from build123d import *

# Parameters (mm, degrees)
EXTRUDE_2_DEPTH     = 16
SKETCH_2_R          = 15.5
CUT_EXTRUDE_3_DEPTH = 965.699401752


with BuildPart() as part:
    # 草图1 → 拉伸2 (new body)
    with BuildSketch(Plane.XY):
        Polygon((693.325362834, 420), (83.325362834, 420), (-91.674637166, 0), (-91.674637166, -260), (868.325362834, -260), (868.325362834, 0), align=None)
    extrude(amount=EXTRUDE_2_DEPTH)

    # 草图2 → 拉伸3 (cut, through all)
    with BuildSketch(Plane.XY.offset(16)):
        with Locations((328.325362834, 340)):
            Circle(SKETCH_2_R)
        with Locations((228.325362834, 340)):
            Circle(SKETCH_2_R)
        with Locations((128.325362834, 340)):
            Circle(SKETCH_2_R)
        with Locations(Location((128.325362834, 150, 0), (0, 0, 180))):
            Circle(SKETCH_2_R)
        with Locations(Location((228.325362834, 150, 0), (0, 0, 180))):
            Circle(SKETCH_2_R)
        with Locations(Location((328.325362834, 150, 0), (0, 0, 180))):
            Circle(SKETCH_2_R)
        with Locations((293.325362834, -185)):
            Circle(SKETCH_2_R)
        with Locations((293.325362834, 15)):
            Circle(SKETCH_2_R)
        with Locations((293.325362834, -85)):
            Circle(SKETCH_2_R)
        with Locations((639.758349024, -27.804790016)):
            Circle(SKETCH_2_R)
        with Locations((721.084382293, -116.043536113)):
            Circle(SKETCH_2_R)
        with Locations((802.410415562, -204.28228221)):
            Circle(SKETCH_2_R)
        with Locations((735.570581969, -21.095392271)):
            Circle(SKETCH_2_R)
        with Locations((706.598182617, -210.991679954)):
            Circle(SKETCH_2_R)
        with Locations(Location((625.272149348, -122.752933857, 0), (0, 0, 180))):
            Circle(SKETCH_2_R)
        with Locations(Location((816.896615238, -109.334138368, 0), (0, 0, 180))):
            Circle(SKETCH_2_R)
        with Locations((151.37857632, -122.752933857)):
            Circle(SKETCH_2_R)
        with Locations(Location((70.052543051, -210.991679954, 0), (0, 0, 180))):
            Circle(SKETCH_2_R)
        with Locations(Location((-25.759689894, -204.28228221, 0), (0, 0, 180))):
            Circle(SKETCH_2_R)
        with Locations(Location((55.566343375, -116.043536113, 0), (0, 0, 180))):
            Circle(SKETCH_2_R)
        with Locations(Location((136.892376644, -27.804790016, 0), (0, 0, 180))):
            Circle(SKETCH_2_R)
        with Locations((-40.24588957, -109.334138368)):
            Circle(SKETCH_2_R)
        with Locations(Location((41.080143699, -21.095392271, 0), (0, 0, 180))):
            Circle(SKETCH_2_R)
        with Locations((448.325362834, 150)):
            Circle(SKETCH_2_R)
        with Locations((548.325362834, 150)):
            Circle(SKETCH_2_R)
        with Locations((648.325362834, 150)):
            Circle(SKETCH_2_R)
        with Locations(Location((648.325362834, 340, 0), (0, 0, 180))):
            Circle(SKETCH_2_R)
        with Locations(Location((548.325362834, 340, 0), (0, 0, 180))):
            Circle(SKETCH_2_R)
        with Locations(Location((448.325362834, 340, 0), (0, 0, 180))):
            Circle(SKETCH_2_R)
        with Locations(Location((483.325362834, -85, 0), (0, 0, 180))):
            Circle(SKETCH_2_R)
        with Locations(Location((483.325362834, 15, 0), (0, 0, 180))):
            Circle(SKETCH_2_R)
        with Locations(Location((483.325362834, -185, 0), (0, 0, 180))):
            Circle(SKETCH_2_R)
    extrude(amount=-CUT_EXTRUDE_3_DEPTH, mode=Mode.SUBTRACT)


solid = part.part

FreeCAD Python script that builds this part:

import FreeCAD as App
import Part
import Sketcher
from FreeCAD import Vector

doc = App.newDocument("Part")
params = doc.addObject("Spreadsheet::Sheet", "Params")
for row, (alias, value) in enumerate([
    ("sketch1_width", "610 mm"),
    ("sketch1_width2", "960 mm"),
    ("sketch1_height", "260 mm"),
    ("sketch1_length", "455 mm"),
    ("pad1_length", "16 mm"),
    ("sketch2_diameter", "31 mm"),
], start=1):
    params.set(f"A{row}", alias)
    params.set(f"B{row}", "=" + value)
    params.setAlias(f"B{row}", alias)

body = doc.addObject("PartDesign::Body", "Body")

# Sketch on XY plane
sketch1 = body.newObject("Sketcher::SketchObject", "Sketch")
sketch1.AttachmentSupport = (doc.getObject("XY_Plane"), [""])
sketch1.MapMode = "FlatFace"
sketch1.addGeometry([
    Part.LineSegment(Vector(693, 420, 0), Vector(83, 420, 0)),  # 0
    Part.LineSegment(Vector(83, 420, 0), Vector(-92, 0, 0)),  # 1
    Part.LineSegment(Vector(-92, 0, 0), Vector(-92, -260, 0)),  # 2
    Part.LineSegment(Vector(-92, -260, 0), Vector(868, -260, 0)),  # 3
    Part.LineSegment(Vector(868, -260, 0), Vector(868, 0, 0)),  # 4
    Part.LineSegment(Vector(868, 0, 0), Vector(693, 420, 0)),  # 5
], False)
sketch1.addConstraint([
    Sketcher.Constraint("Coincident", 0, 2, 1, 1),
    Sketcher.Constraint("Coincident", 1, 2, 2, 1),
    Sketcher.Constraint("Coincident", 2, 2, 3, 1),
    Sketcher.Constraint("Coincident", 3, 2, 4, 1),
    Sketcher.Constraint("Coincident", 4, 2, 5, 1),
    Sketcher.Constraint("Coincident", 5, 2, 0, 1),
    Sketcher.Constraint("Horizontal", 0),
    Sketcher.Constraint("Vertical", 2),
    Sketcher.Constraint("Horizontal", 3),
    Sketcher.Constraint("Vertical", 4),
    Sketcher.Constraint("PointOnObject", 1, 2, -1),
    Sketcher.Constraint("PointOnObject", 4, 2, -1),
    Sketcher.Constraint("Equal", 1, 5),
    Sketcher.Constraint("DistanceX", 0, 2, 0, 1, 610.0),
    Sketcher.Constraint("DistanceX", 3, 1, 3, 2, 960.0),
    Sketcher.Constraint("DistanceY", 2, 2, 2, 1, 260.0),
    Sketcher.Constraint("Distance", 1, 455.0),
    Sketcher.Constraint("DistanceX", -1, 1, 0, 2, 83.325363),
])
sketch1.setExpression("Constraints[13]", "Params.sketch1_width")
sketch1.setExpression("Constraints[14]", "Params.sketch1_width2")
sketch1.setExpression("Constraints[15]", "Params.sketch1_height")
sketch1.setExpression("Constraints[16]", "Params.sketch1_length")
pad1 = body.newObject("PartDesign::Pad", "Pad")
pad1.Profile = sketch1
pad1.setExpression("Length", "Params.pad1_length")

# Sketch on XY plane
sketch2 = body.newObject("Sketcher::SketchObject", "Sketch001")
sketch2.AttachmentSupport = (doc.getObject("XY_Plane"), [""])
sketch2.MapMode = "FlatFace"
sketch2.AttachmentOffset = App.Placement(Vector(0, 0, 16), App.Rotation())
sketch2.addGeometry([
    Part.Circle(Vector(328, 340, 0), Vector(0, 0, 1), 16),  # 0
    Part.Circle(Vector(228, 340, 0), Vector(0, 0, 1), 16),  # 1
    Part.Circle(Vector(128, 340, 0), Vector(0, 0, 1), 16),  # 2
    Part.Circle(Vector(128, 150, 0), Vector(0, 0, 1), 16),  # 3
    Part.Circle(Vector(228, 150, 0), Vector(0, 0, 1), 16),  # 4
    Part.Circle(Vector(328, 150, 0), Vector(0, 0, 1), 16),  # 5
    Part.Circle(Vector(293, -185, 0), Vector(0, 0, 1), 16),  # 6
    Part.Circle(Vector(293, 15, 0), Vector(0, 0, 1), 16),  # 7
    Part.Circle(Vector(293, -85, 0), Vector(0, 0, 1), 16),  # 8
    Part.Circle(Vector(640, -28, 0), Vector(0, 0, 1), 16),  # 9
    Part.Circle(Vector(721, -116, 0), Vector(0, 0, 1), 16),  # 10
    Part.Circle(Vector(802, -204, 0), Vector(0, 0, 1), 16),  # 11
    Part.Circle(Vector(736, -21, 0), Vector(0, 0, 1), 16),  # 12
    Part.Circle(Vector(707, -211, 0), Vector(0, 0, 1), 16),  # 13
    Part.Circle(Vector(625, -123, 0), Vector(0, 0, 1), 16),  # 14
    Part.Circle(Vector(817, -109, 0), Vector(0, 0, 1), 16),  # 15
    Part.Circle(Vector(151, -123, 0), Vector(0, 0, 1), 16),  # 16
    Part.Circle(Vector(70, -211, 0), Vector(0, 0, 1), 16),  # 17
    Part.Circle(Vector(-26, -204, 0), Vector(0, 0, 1), 16),  # 18
    Part.Circle(Vector(56, -116, 0), Vector(0, 0, 1), 16),  # 19
    Part.Circle(Vector(137, -28, 0), Vector(0, 0, 1), 16),  # 20
    Part.Circle(Vector(-40, -109, 0), Vector(0, 0, 1), 16),  # 21
    Part.Circle(Vector(41, -21, 0), Vector(0, 0, 1), 16),  # 22
    Part.Circle(Vector(448, 150, 0), Vector(0, 0, 1), 16),  # 23
    Part.Circle(Vector(548, 150, 0), Vector(0, 0, 1), 16),  # 24
    Part.Circle(Vector(648, 150, 0), Vector(0, 0, 1), 16),  # 25
    Part.Circle(Vector(648, 340, 0), Vector(0, 0, 1), 16),  # 26
    Part.Circle(Vector(548, 340, 0), Vector(0, 0, 1), 16),  # 27
    Part.Circle(Vector(448, 340, 0), Vector(0, 0, 1), 16),  # 28
    Part.Circle(Vector(483, -85, 0), Vector(0, 0, 1), 16),  # 29
    Part.Circle(Vector(483, 15, 0), Vector(0, 0, 1), 16),  # 30
    Part.Circle(Vector(483, -185, 0), Vector(0, 0, 1), 16),  # 31
], False)
sketch2.addConstraint([
    Sketcher.Constraint("Equal", 0, 1),
    Sketcher.Constraint("Equal", 1, 2),
    Sketcher.Constraint("Equal", 2, 3),
    Sketcher.Constraint("Equal", 3, 4),
    Sketcher.Constraint("Equal", 4, 5),
    Sketcher.Constraint("Equal", 5, 6),
    Sketcher.Constraint("Equal", 6, 7),
    Sketcher.Constraint("Equal", 7, 8),
    Sketcher.Constraint("Equal", 8, 9),
    Sketcher.Constraint("Equal", 9, 10),
    Sketcher.Constraint("Equal", 10, 11),
    Sketcher.Constraint("Equal", 11, 12),
    Sketcher.Constraint("Equal", 12, 13),
    Sketcher.Constraint("Equal", 13, 14),
    Sketcher.Constraint("Equal", 14, 15),
    Sketcher.Constraint("Equal", 15, 16),
    Sketcher.Constraint("Equal", 16, 17),
    Sketcher.Constraint("Equal", 17, 18),
    Sketcher.Constraint("Equal", 18, 19),
    Sketcher.Constraint("Equal", 19, 20),
    Sketcher.Constraint("Equal", 20, 21),
    Sketcher.Constraint("Equal", 21, 22),
    Sketcher.Constraint("Equal", 22, 23),
    Sketcher.Constraint("Equal", 23, 24),
    Sketcher.Constraint("Equal", 24, 25),
    Sketcher.Constraint("Equal", 25, 26),
    Sketcher.Constraint("Equal", 26, 27),
    Sketcher.Constraint("Equal", 27, 28),
    Sketcher.Constraint("Equal", 28, 29),
    Sketcher.Constraint("Equal", 29, 30),
    Sketcher.Constraint("Equal", 30, 31),
    Sketcher.Constraint("Horizontal", 0, 3, 1, 3),
    Sketcher.Constraint("Horizontal", 1, 3, 2, 3),
    Sketcher.Constraint("Horizontal", 3, 3, 4, 3),
    Sketcher.Constraint("Horizontal", 4, 3, 5, 3),
    Sketcher.Constraint("Horizontal", 14, 3, 16, 3),
    Sketcher.Constraint("Horizontal", 13, 3, 17, 3),
    Sketcher.Constraint("Horizontal", 11, 3, 18, 3),
    Sketcher.Constraint("Horizontal", 10, 3, 19, 3),
    Sketcher.Constraint("Horizontal", 9, 3, 20, 3),
    Sketcher.Constraint("Horizontal", 15, 3, 21, 3),
    Sketcher.Constraint("Horizontal", 12, 3, 22, 3),
    Sketcher.Constraint("Horizontal", 5, 3, 23, 3),
    Sketcher.Constraint("Horizontal", 23, 3, 24, 3),
    Sketcher.Constraint("Horizontal", 24, 3, 25, 3),
    Sketcher.Constraint("Horizontal", 2, 3, 26, 3),
    Sketcher.Constraint("Horizontal", 26, 3, 27, 3),
    Sketcher.Constraint("Horizontal", 27, 3, 28, 3),
    Sketcher.Constraint("Horizontal", 8, 3, 29, 3),
    Sketcher.Constraint("Horizontal", 7, 3, 30, 3),
    Sketcher.Constraint("Horizontal", 6, 3, 31, 3),
    Sketcher.Constraint("Vertical", 2, 3, 3, 3),
    Sketcher.Constraint("Vertical", 1, 3, 4, 3),
    Sketcher.Constraint("Vertical", 0, 3, 5, 3),
    Sketcher.Constraint("Vertical", 6, 3, 7, 3),
    Sketcher.Constraint("Vertical", 7, 3, 8, 3),
    Sketcher.Constraint("Vertical", 25, 3, 26, 3),
    Sketcher.Constraint("Vertical", 24, 3, 27, 3),
    Sketcher.Constraint("Vertical", 23, 3, 28, 3),
    Sketcher.Constraint("Vertical", 29, 3, 30, 3),
    Sketcher.Constraint("Vertical", 30, 3, 31, 3),
    Sketcher.Constraint("Diameter", 0, 31.0),
    Sketcher.Constraint("DistanceY", -1, 1, 0, 3, 340.0),
    Sketcher.Constraint("DistanceY", -1, 1, 3, 3, 150.0),
    Sketcher.Constraint("DistanceY", 6, 3, -1, 1, 185.0),
    Sketcher.Constraint("DistanceY", -1, 1, 7, 3, 15.0),
    Sketcher.Constraint("DistanceY", 8, 3, -1, 1, 85.0),
    Sketcher.Constraint("DistanceX", 1, 3, 0, 3, 100.0),
    Sketcher.Constraint("DistanceX", 2, 3, 1, 3, 100.0),
    Sketcher.Constraint("DistanceX", 6, 3, 5, 3, 35.0),
    Sketcher.Constraint("DistanceX", 5, 3, 23, 3, 120.0),
    Sketcher.Constraint("DistanceX", 23, 3, 24, 3, 100.0),
    Sketcher.Constraint("DistanceX", 24, 3, 25, 3, 100.0),
    Sketcher.Constraint("DistanceX", 8, 3, 29, 3, 190.0),
    Sketcher.Constraint("DistanceX", 10, 3, 12, 3, 14.4862),
    Sketcher.Constraint("DistanceX", 13, 3, 10, 3, 14.4862),
    Sketcher.Constraint("DistanceX", 14, 3, 9, 3, 14.4862),
    Sketcher.Constraint("DistanceX", 11, 3, 15, 3, 14.4862),
    Sketcher.Constraint("DistanceX", 19, 3, 17, 3, 14.4862),
    Sketcher.Constraint("DistanceX", 20, 3, 16, 3, 14.4862),
    Sketcher.Constraint("DistanceX", 21, 3, 18, 3, 14.4862),
    Sketcher.Constraint("DistanceX", 22, 3, 19, 3, 14.4862),
    Sketcher.Constraint("DistanceX", -1, 1, 9, 3, 639.758349),
    Sketcher.Constraint("DistanceY", 9, 3, -1, 1, 27.80479),
    Sketcher.Constraint("DistanceX", -1, 1, 12, 3, 735.570582),
    Sketcher.Constraint("DistanceY", 13, 3, -1, 1, 210.99168),
    Sketcher.Constraint("DistanceY", 15, 3, -1, 1, 109.334138),
    Sketcher.Constraint("DistanceX", 18, 3, -1, 1, 25.75969),
    Sketcher.Constraint("DistanceX", 8, 3, 10, 3, 427.759019),
    Sketcher.Constraint("DistanceY", 11, 3, 12, 3, 183.18689),
    Sketcher.Constraint("DistanceY", 14, 3, 12, 3, 101.657542),
    Sketcher.Constraint("DistanceX", 17, 3, 6, 3, 223.27282),
    Sketcher.Constraint("DistanceY", 10, 3, -1, 1, 116.043536),
    Sketcher.Constraint("DistanceX", -1, 1, 11, 3, 802.410416),
    Sketcher.Constraint("DistanceY", 11, 3, -1, 1, 204.282282),
    Sketcher.Constraint("DistanceX", -1, 1, 16, 3, 151.378576),
])
sketch2.setExpression("Constraints[61]", "Params.sketch2_diameter")
pocket1 = body.newObject("PartDesign::Pocket", "Pocket")
pocket1.Profile = sketch2
pocket1.Type = "ThroughAll"

doc.recompute()
